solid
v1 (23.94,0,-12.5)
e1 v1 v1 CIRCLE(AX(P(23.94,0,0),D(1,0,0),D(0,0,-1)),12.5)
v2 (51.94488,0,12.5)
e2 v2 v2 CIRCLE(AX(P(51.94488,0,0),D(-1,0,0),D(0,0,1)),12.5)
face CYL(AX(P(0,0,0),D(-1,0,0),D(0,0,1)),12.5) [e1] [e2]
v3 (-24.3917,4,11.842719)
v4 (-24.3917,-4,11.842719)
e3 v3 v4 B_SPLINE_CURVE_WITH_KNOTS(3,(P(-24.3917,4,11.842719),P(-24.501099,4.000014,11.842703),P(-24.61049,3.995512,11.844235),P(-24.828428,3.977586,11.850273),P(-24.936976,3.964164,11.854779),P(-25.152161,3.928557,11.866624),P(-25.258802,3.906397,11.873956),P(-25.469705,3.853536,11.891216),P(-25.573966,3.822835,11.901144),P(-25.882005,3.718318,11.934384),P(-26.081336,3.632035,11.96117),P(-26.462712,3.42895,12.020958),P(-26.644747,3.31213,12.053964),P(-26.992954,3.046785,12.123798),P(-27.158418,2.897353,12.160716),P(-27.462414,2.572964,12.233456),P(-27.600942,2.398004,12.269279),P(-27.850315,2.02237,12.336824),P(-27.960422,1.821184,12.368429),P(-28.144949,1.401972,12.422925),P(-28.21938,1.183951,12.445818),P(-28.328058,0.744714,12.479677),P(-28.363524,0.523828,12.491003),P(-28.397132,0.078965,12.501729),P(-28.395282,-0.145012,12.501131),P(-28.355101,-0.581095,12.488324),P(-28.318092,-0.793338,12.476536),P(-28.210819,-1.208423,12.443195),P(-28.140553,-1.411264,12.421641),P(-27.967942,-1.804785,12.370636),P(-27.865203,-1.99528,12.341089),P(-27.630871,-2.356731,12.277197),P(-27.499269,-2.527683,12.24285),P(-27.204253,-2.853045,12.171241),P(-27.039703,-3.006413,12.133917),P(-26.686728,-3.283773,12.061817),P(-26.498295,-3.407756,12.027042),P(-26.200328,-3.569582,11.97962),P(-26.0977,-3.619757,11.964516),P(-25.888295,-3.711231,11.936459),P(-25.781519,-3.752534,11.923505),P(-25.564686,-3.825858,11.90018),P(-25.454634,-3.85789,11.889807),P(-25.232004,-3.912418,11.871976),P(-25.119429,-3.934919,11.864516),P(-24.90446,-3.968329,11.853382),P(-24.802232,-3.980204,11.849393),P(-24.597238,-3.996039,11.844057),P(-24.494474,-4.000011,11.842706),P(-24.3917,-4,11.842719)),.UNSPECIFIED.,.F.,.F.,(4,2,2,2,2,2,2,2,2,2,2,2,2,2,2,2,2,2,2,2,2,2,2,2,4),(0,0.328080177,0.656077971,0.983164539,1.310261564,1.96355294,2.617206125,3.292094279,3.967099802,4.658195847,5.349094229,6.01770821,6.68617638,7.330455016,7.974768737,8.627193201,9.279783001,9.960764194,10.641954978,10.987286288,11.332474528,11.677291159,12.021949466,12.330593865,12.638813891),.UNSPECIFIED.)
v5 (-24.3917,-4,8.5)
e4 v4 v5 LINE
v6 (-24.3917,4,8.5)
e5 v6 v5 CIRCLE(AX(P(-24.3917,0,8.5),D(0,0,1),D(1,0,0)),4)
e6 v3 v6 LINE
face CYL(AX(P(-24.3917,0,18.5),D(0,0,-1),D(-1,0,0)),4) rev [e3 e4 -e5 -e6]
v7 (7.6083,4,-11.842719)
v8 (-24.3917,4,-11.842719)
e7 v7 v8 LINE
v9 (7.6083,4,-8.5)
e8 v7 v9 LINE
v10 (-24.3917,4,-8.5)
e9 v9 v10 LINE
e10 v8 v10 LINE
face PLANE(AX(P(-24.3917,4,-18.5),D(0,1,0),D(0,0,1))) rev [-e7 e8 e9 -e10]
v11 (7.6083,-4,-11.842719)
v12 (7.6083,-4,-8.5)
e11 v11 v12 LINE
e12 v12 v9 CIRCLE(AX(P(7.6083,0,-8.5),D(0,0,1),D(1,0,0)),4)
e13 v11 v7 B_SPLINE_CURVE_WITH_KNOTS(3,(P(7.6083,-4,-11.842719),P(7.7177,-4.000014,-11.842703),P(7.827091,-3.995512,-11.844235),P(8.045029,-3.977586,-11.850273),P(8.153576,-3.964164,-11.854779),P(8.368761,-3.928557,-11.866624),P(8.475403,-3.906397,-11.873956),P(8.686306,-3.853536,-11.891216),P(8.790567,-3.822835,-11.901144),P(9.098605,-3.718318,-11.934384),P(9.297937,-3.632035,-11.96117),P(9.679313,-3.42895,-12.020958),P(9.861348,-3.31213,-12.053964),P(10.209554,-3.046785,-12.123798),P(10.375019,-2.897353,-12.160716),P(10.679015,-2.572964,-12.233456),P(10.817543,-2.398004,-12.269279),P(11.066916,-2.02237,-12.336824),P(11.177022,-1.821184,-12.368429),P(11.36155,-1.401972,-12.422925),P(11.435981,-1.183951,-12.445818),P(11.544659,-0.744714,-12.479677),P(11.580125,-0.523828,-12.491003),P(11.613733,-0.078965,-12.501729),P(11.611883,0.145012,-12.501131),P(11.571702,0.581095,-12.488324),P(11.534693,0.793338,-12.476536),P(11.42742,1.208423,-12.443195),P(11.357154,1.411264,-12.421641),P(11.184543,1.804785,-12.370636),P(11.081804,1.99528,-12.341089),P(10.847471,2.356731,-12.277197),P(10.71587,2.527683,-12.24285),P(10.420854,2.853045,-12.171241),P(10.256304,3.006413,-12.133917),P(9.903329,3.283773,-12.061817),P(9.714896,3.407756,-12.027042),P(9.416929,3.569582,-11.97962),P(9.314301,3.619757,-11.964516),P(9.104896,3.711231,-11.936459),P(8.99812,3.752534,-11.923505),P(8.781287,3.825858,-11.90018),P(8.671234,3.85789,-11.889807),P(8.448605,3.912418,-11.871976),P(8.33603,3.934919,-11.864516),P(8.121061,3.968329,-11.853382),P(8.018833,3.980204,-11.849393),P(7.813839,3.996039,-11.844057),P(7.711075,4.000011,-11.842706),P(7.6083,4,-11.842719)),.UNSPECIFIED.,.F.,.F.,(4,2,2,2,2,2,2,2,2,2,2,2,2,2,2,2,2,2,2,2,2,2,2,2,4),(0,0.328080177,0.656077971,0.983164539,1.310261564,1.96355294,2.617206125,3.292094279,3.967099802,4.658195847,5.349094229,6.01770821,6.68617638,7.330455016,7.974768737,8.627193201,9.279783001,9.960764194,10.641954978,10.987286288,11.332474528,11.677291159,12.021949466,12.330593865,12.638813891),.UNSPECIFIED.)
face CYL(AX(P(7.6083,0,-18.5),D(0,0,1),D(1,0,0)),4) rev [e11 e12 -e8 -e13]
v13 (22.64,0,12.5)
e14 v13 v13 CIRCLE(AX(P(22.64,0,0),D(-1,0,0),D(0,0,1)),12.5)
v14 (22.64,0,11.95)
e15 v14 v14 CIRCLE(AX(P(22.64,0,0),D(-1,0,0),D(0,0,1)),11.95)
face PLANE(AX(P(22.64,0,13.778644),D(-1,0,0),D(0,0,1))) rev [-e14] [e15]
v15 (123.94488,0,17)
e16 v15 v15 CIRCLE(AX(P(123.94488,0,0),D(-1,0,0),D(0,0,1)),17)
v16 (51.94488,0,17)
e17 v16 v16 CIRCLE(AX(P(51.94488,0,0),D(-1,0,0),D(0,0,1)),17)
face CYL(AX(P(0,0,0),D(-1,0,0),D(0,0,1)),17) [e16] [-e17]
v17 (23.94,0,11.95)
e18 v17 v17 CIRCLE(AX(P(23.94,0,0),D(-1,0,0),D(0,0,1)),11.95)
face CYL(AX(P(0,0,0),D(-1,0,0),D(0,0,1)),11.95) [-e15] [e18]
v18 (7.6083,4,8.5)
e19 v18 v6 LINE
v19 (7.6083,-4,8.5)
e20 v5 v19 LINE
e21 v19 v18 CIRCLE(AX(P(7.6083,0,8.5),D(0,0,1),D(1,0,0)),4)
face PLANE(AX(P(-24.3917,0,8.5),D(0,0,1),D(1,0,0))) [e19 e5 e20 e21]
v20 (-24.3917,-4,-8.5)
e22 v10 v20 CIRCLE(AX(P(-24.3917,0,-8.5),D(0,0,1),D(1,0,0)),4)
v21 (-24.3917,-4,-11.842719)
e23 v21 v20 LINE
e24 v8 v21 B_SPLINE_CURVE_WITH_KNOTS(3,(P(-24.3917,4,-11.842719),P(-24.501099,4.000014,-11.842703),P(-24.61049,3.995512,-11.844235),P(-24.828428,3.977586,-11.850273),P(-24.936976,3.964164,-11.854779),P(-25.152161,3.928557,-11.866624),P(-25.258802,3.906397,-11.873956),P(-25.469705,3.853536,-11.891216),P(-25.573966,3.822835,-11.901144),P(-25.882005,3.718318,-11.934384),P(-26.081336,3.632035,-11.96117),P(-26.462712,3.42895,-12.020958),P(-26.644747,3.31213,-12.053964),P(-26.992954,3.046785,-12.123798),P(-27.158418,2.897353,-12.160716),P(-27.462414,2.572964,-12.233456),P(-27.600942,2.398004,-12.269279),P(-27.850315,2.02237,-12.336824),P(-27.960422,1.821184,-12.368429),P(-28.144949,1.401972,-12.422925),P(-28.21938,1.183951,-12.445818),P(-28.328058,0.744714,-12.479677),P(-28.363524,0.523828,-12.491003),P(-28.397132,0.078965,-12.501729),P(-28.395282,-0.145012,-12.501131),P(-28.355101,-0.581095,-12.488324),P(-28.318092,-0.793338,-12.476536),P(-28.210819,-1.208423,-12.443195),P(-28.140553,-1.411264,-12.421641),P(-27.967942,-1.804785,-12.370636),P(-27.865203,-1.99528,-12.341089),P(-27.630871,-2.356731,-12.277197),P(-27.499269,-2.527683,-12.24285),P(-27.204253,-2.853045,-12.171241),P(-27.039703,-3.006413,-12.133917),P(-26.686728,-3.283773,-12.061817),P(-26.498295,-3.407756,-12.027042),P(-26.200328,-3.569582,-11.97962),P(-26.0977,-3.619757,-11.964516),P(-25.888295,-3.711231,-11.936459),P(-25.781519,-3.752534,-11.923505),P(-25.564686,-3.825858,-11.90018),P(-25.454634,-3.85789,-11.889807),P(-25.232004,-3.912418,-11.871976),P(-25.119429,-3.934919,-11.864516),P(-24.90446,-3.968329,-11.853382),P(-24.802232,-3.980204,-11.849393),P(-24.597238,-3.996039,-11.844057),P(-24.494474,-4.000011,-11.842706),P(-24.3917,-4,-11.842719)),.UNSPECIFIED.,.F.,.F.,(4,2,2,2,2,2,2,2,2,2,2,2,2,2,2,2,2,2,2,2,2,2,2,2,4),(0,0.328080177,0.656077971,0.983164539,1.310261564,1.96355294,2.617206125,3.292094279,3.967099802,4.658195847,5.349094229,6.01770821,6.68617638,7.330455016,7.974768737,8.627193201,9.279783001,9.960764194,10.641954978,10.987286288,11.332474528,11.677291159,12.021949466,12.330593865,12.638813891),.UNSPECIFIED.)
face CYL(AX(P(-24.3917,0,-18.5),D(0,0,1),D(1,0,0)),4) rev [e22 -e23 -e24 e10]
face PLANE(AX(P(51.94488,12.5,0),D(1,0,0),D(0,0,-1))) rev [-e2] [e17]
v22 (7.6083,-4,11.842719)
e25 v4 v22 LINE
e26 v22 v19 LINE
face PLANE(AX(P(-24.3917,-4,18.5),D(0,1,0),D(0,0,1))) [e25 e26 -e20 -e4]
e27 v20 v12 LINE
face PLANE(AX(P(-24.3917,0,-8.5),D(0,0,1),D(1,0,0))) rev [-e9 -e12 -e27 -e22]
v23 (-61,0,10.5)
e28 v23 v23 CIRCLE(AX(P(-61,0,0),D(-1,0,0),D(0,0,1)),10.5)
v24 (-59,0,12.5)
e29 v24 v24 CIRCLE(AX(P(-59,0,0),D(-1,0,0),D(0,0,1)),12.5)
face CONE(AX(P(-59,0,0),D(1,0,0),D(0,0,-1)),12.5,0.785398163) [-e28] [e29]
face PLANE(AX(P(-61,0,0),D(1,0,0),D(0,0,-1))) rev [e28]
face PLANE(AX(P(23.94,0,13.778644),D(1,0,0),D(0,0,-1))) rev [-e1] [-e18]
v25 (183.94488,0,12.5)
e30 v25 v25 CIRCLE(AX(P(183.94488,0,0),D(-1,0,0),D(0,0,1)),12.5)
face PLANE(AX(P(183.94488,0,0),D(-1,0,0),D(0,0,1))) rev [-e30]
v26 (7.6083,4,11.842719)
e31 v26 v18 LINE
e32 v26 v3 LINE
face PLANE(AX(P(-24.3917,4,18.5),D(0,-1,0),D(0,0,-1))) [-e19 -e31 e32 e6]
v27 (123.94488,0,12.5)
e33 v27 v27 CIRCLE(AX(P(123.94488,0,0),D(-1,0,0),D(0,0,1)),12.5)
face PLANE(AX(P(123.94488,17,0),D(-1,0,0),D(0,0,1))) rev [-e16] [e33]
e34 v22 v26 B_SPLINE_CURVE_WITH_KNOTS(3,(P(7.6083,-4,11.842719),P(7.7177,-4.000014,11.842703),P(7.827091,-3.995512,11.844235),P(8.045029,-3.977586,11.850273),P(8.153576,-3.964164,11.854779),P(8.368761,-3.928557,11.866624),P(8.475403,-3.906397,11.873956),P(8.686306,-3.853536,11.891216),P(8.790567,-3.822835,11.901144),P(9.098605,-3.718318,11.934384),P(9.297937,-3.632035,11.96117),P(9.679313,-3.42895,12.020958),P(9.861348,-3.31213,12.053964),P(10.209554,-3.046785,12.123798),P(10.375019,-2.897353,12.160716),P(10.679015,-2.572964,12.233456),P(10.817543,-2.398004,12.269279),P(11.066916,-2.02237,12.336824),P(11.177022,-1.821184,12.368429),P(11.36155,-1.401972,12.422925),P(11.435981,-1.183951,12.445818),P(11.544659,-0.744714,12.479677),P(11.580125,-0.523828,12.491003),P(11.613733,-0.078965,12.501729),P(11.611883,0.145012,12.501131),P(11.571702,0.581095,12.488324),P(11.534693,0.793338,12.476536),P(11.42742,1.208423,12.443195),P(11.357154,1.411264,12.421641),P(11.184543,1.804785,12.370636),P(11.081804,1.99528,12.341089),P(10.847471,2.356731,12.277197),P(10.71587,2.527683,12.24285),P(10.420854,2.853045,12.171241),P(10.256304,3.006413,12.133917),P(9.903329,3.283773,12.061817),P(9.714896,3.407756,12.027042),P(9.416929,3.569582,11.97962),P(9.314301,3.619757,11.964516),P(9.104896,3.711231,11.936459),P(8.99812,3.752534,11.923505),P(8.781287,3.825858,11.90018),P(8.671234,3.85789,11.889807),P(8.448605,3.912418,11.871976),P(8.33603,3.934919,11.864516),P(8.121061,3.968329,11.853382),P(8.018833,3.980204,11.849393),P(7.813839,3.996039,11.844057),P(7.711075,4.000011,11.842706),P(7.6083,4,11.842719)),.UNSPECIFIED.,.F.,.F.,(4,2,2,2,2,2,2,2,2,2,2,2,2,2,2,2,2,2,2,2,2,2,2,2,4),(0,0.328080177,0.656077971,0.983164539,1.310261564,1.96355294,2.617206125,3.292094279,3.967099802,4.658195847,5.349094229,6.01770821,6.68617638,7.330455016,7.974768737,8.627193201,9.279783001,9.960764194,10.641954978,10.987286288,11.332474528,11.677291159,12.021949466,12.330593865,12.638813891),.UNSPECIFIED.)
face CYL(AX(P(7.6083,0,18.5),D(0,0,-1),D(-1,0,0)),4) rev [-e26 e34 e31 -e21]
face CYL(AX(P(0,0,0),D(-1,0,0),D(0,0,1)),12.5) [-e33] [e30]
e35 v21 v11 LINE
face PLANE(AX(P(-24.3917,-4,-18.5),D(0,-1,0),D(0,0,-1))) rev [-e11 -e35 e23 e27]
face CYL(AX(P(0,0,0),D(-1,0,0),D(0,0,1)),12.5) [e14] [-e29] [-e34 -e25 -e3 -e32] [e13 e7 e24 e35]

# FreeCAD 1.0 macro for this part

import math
import FreeCAD as App
import Part
import Sketcher

V = App.Vector
Q = App.Units.Quantity


def add_polygon(sketch, points):
    """Adds a closed chain of lines whose ends are joined by coincident constraints."""
    first, n = sketch.GeometryCount, len(points)
    for a, b in zip(points, points[1:] + points[:1]):
        sketch.addGeometry(Part.LineSegment(App.Vector(*a, 0), App.Vector(*b, 0)), False)
    for i in range(n):
        sketch.addConstraint(Sketcher.Constraint("Coincident", first + i, 2, first + (i + 1) % n, 1))

doc = App.newDocument("Part")
body = doc.addObject("PartDesign::Body", "Body")

sketch1 = body.newObject("Sketcher::SketchObject", "Sketch")
sketch1.AttachmentSupport = (doc.getObject("XY_Plane"), [""])
sketch1.MapMode = "FlatFace"
add_polygon(sketch1, [(-61, 0), (183.9, 0), (183.9, 12.5), (123.9, 12.5), (123.9, 17), (51.9, 17), (51.9, 12.5), (-59, 12.5), (-61, 10.5)])
sketch1.addConstraint(Sketcher.Constraint("Horizontal", 0))
sketch1.addConstraint(Sketcher.Constraint("Vertical", 1))
sketch1.addConstraint(Sketcher.Constraint("Horizontal", 2))
sketch1.addConstraint(Sketcher.Constraint("Vertical", 3))
sketch1.addConstraint(Sketcher.Constraint("Horizontal", 4))
sketch1.addConstraint(Sketcher.Constraint("Vertical", 5))
sketch1.addConstraint(Sketcher.Constraint("Horizontal", 6))
sketch1.addConstraint(Sketcher.Constraint("Vertical", 8))
sketch1.addConstraint(Sketcher.Constraint("PointOnObject", 0, 2, -1))
sketch1.addConstraint(Sketcher.Constraint("Horizontal", 2, 2, 5, 2))
sketch1.addConstraint(Sketcher.Constraint("DistanceX", 2, 2, 2, 1, 60.0))
sketch1.addConstraint(Sketcher.Constraint("DistanceX", 4, 2, 4, 1, 72.0))
sketch1.addConstraint(Sketcher.Constraint("Angle", 7, Q("-135 deg")))
sketch1.addConstraint(Sketcher.Constraint("DistanceY", 1, 1, 1, 2, 12.5))
sketch1.addConstraint(Sketcher.Constraint("DistanceY", 3, 1, 3, 2, 4.5))
sketch1.addConstraint(Sketcher.Constraint("DistanceY", 8, 2, 8, 1, 10.5))
sketch1.addConstraint(Sketcher.Constraint("DistanceX", 6, 2, -1, 1, 59.0))
sketch1.addConstraint(Sketcher.Constraint("DistanceX", 0, 1, 0, 2, 244.94488))
revolution = body.newObject("PartDesign::Revolution", "Revolution")
revolution.Profile = sketch1
revolution.ReferenceAxis = (sketch1, ["H_Axis"])
revolution.Angle = 360

sketch2 = body.newObject("Sketcher::SketchObject", "Sketch001")
sketch2.AttachmentSupport = (doc.getObject("XZ_Plane"), [""])
sketch2.MapMode = "FlatFace"
add_polygon(sketch2, [(22.6, 11.9), (22.6, 13.8), (23.9, 13.8), (23.9, 11.9)])
sketch2.addConstraint(Sketcher.Constraint("Vertical", 0))
sketch2.addConstraint(Sketcher.Constraint("Horizontal", 1))
sketch2.addConstraint(Sketcher.Constraint("Vertical", 2))
sketch2.addConstraint(Sketcher.Constraint("Horizontal", 3))
sketch2.addConstraint(Sketcher.Constraint("DistanceX", 1, 1, 1, 2, 1.3))
sketch2.addConstraint(Sketcher.Constraint("DistanceX", -1, 1, 0, 2, 22.64))
sketch2.addConstraint(Sketcher.Constraint("DistanceY", -1, 1, 2, 2, 11.95))
sketch2.addConstraint(Sketcher.Constraint("DistanceY", 0, 1, 0, 2, 1.828644))
groove = body.newObject("PartDesign::Groove", "Groove")
groove.Profile = sketch2
groove.ReferenceAxis = (sketch2, ["H_Axis"])
groove.Angle = 360

sketch3 = body.newObject("Sketcher::SketchObject", "Sketch002")
sketch3.AttachmentSupport = (doc.getObject("XY_Plane"), [""])
sketch3.MapMode = "FlatFace"
sketch3.AttachmentOffset = App.Placement(V(0, 0, 8.5), App.Rotation())
sketch3.addGeometry(Part.LineSegment(V(7.6, 4, 0), V(-24.4, 4, 0)), False)
sketch3.addGeometry(Part.ArcOfCircle(Part.Circle(V(-24.4, 0, 0), V(0, 0, 1), 4), math.radians(90), math.radians(270)), False)
sketch3.addGeometry(Part.LineSegment(V(-24.4, -4, 0), V(7.6, -4, 0)), False)
sketch3.addGeometry(Part.ArcOfCircle(Part.Circle(V(7.6, 0, 0), V(0, 0, 1), 4), math.radians(-90), math.radians(90)), False)
sketch3.addConstraint(Sketcher.Constraint("Tangent", 0, 2, 1, 1))
sketch3.addConstraint(Sketcher.Constraint("Tangent", 1, 2, 2, 1))
sketch3.addConstraint(Sketcher.Constraint("Tangent", 2, 2, 3, 1))
sketch3.addConstraint(Sketcher.Constraint("Tangent", 3, 2, 0, 1))
sketch3.addConstraint(Sketcher.Constraint("Horizontal", 0))
sketch3.addConstraint(Sketcher.Constraint("Horizontal", 2))
sketch3.addConstraint(Sketcher.Constraint("PointOnObject", 1, 3, -1))
sketch3.addConstraint(Sketcher.Constraint("Radius", 1, 4.0))
sketch3.addConstraint(Sketcher.Constraint("DistanceX", 0, 2, 0, 1, 32.0))
sketch3.addConstraint(Sketcher.Constraint("DistanceX", 1, 3, -1, 1, 24.3917))
pocket1 = body.newObject("PartDesign::Pocket", "Pocket")
pocket1.Profile = sketch3
pocket1.Length = 10
pocket1.Reversed = True

sketch4 = body.newObject("Sketcher::SketchObject", "Sketch003")
sketch4.AttachmentSupport = (doc.getObject("XY_Plane"), [""])
sketch4.MapMode = "FlatFace"
sketch4.AttachmentOffset = App.Placement(V(0, 0, -18.5), App.Rotation())
sketch4.addGeometry(Part.LineSegment(V(7.6, 4, 0), V(-24.4, 4, 0)), False)
sketch4.addGeometry(Part.ArcOfCircle(Part.Circle(V(-24.4, 0, 0), V(0, 0, 1), 4), math.radians(90), math.radians(270)), False)
sketch4.addGeometry(Part.LineSegment(V(-24.4, -4, 0), V(7.6, -4, 0)), False)
sketch4.addGeometry(Part.ArcOfCircle(Part.Circle(V(7.6, 0, 0), V(0, 0, 1), 4), math.radians(-90), math.radians(90)), False)
sketch4.addConstraint(Sketcher.Constraint("Tangent", 0, 2, 1, 1))
sketch4.addConstraint(Sketcher.Constraint("Tangent", 1, 2, 2, 1))
sketch4.addConstraint(Sketcher.Constraint("Tangent", 2, 2, 3, 1))
sketch4.addConstraint(Sketcher.Constraint("Tangent", 3, 2, 0, 1))
sketch4.addConstraint(Sketcher.Constraint("Horizontal", 0))
sketch4.addConstraint(Sketcher.Constraint("Horizontal", 2))
sketch4.addConstraint(Sketcher.Constraint("PointOnObject", 1, 3, -1))
sketch4.addConstraint(Sketcher.Constraint("Radius", 1, 4.0))
sketch4.addConstraint(Sketcher.Constraint("DistanceX", 0, 2, 0, 1, 32.0))
sketch4.addConstraint(Sketcher.Constraint("DistanceX", 1, 3, -1, 1, 24.3917))
pocket2 = body.newObject("PartDesign::Pocket", "Pocket001")
pocket2.Profile = sketch4
pocket2.Length = 10
pocket2.Reversed = True

doc.recompute()
